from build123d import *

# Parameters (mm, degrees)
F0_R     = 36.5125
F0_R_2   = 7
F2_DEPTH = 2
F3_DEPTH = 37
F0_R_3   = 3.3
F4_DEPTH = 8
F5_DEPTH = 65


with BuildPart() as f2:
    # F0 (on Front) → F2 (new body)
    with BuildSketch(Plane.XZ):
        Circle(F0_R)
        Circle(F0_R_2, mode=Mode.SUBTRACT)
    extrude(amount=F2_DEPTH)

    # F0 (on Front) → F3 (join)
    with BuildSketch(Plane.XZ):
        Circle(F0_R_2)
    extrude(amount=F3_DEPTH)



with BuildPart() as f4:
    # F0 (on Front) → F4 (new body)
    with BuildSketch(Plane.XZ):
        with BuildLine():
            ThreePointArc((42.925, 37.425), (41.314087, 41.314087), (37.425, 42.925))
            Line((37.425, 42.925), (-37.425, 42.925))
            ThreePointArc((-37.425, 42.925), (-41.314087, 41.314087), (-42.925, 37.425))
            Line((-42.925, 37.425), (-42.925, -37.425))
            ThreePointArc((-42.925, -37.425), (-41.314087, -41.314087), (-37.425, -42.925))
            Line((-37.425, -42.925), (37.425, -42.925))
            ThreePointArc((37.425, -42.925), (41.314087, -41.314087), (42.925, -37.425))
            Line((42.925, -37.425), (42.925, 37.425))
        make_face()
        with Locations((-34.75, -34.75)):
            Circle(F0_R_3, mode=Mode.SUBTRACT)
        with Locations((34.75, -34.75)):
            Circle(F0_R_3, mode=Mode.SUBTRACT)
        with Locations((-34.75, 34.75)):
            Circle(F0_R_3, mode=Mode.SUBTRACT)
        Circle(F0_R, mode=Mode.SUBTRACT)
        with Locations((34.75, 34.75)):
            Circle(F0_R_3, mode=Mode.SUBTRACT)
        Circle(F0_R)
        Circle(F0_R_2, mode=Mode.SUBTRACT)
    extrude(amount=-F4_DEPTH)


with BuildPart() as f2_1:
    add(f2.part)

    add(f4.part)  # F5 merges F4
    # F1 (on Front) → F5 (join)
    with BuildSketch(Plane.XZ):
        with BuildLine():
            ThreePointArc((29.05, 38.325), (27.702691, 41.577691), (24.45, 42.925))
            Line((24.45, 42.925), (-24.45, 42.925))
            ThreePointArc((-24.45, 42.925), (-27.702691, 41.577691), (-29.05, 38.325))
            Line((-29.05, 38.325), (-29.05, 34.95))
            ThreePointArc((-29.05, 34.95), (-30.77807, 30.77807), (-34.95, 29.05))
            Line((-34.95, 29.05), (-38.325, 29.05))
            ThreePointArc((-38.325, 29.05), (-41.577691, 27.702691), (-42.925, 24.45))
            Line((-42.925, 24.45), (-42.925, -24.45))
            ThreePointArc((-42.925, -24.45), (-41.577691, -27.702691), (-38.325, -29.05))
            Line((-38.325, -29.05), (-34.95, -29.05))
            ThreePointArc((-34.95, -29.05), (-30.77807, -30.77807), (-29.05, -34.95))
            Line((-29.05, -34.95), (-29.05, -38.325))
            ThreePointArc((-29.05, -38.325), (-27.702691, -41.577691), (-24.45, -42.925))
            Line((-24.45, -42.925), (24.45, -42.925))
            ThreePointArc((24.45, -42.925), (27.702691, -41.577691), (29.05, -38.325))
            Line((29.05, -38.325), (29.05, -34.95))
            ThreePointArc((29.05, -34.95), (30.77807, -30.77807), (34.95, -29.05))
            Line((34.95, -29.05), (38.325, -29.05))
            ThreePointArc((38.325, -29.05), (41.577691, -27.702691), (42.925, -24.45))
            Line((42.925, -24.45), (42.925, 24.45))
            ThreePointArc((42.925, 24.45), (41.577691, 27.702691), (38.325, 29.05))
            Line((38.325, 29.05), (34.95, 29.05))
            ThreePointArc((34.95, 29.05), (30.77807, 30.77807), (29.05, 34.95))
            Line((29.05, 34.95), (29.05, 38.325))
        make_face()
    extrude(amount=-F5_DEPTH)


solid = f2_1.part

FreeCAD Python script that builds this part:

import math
import FreeCAD as App
import Part
import Sketcher
from FreeCAD import Vector

doc = App.newDocument("Part")
params = doc.addObject("Spreadsheet::Sheet", "Params")
for row, (alias, value) in enumerate([
    ("sketch1_diameter", "14 mm"),
    ("pad1_length", "2 mm"),
    ("sketch2_diameter", "14 mm"),
    ("pad2_length", "37 mm"),
    ("sketch3_diameter", "14 mm"),
    ("sketch3_diameter2", "6.6 mm"),
    ("sketch3_radius", "5.500001 mm"),
    ("sketch3_width", "74.85 mm"),
    ("pad3_length", "8 mm"),
    ("sketch4_radius", "4.600001 mm"),
    ("sketch4_radius2", "5.9 mm"),
    ("sketch4_width", "48.9 mm"),
    ("pad4_length", "65 mm"),
], start=1):
    params.set(f"A{row}", alias)
    params.set(f"B{row}", "=" + value)
    params.setAlias(f"B{row}", alias)

body = doc.addObject("PartDesign::Body", "Body")

# Sketch on XZ plane
sketch1 = doc.addObject("Sketcher::SketchObject", "Sketch")
body.addObject(sketch1)
sketch1.AttachmentSupport = (doc.XZ_Plane, [""])
sketch1.MapMode = "FlatFace"
sketch1.addGeometry(Part.Circle(Vector(0, 0, 0), Vector(0, 0, 1), 37), False)
sketch1.addGeometry(Part.Circle(Vector(0, 0, 0), Vector(0, 0, 1), 7), False)
sketch1.addConstraint(Sketcher.Constraint("Coincident", 0, 3, -1, 1))
sketch1.addConstraint(Sketcher.Constraint("Coincident", 1, 3, -1, 1))
sketch1.addConstraint(Sketcher.Constraint("Diameter", 1, 14.0))
sketch1.addConstraint(Sketcher.Constraint("Diameter", 0, 73.025))
sketch1.setExpression("Constraints[2]", "Params.sketch1_diameter")
pad1 = doc.addObject("PartDesign::Pad", "Pad")
body.addObject(pad1)
pad1.Profile = sketch1
pad1.setExpression("Length", "Params.pad1_length")

# Sketch on XZ plane
sketch2 = doc.addObject("Sketcher::SketchObject", "Sketch001")
body.addObject(sketch2)
sketch2.AttachmentSupport = (doc.XZ_Plane, [""])
sketch2.MapMode = "FlatFace"
sketch2.addGeometry(Part.Circle(Vector(0, 0, 0), Vector(0, 0, 1), 7), False)
sketch2.addConstraint(Sketcher.Constraint("Coincident", 0, 3, -1, 1))
sketch2.addConstraint(Sketcher.Constraint("Diameter", 0, 14.0))
sketch2.setExpression("Constraints[1]", "Params.sketch2_diameter")
pad2 = doc.addObject("PartDesign::Pad", "Pad001")
body.addObject(pad2)
pad2.Profile = sketch2
pad2.setExpression("Length", "Params.pad2_length")
body2 = doc.addObject("PartDesign::Body", "Body001")

# Sketch on XZ plane
sketch3 = doc.addObject("Sketcher::SketchObject", "Sketch002")
body2.addObject(sketch3)
sketch3.AttachmentSupport = (doc.getObject("XZ_Plane001"), [""])
sketch3.MapMode = "FlatFace"
sketch3.addGeometry(Part.ArcOfCircle(Part.Circle(Vector(37.4, 37.4, 0), Vector(0, 0, 1), 5.5), math.radians(0), math.radians(90)), False)
sketch3.addGeometry(Part.LineSegment(Vector(37.4, 42.9, 0), Vector(-37.4, 42.9, 0)), False)
sketch3.addGeometry(Part.ArcOfCircle(Part.Circle(Vector(-37.4, 37.4, 0), Vector(0, 0, 1), 5.5), math.radians(90), math.radians(180)), False)
sketch3.addGeometry(Part.LineSegment(Vector(-42.9, 37.4, 0), Vector(-42.9, -37.4, 0)), False)
sketch3.addGeometry(Part.ArcOfCircle(Part.Circle(Vector(-37.4, -37.4, 0), Vector(0, 0, 1), 5.5), math.radians(-180), math.radians(-90)), False)
sketch3.addGeometry(Part.LineSegment(Vector(-37.4, -42.9, 0), Vector(37.4, -42.9, 0)), False)
sketch3.addGeometry(Part.ArcOfCircle(Part.Circle(Vector(37.4, -37.4, 0), Vector(0, 0, 1), 5.5), math.radians(-90), math.radians(0)), False)
sketch3.addGeometry(Part.LineSegment(Vector(42.9, -37.4, 0), Vector(42.9, 37.4, 0)), False)
sketch3.addGeometry(Part.Circle(Vector(-34.8, -34.8, 0), Vector(0, 0, 1), 3.3), False)
sketch3.addGeometry(Part.Circle(Vector(34.8, -34.8, 0), Vector(0, 0, 1), 3.3), False)
sketch3.addGeometry(Part.Circle(Vector(-34.8, 34.8, 0), Vector(0, 0, 1), 3.3), False)
sketch3.addGeometry(Part.Circle(Vector(0, 0, 0), Vector(0, 0, 1), 7), False)
sketch3.addGeometry(Part.Circle(Vector(34.8, 34.8, 0), Vector(0, 0, 1), 3.3), False)
sketch3.addConstraint(Sketcher.Constraint("Tangent", 0, 2, 1, 1))
sketch3.addConstraint(Sketcher.Constraint("Tangent", 1, 2, 2, 1))
sketch3.addConstraint(Sketcher.Constraint("Tangent", 2, 2, 3, 1))
sketch3.addConstraint(Sketcher.Constraint("Tangent", 3, 2, 4, 1))
sketch3.addConstraint(Sketcher.Constraint("Tangent", 4, 2, 5, 1))
sketch3.addConstraint(Sketcher.Constraint("Tangent", 5, 2, 6, 1))
sketch3.addConstraint(Sketcher.Constraint("Tangent", 6, 2, 7, 1))
sketch3.addConstraint(Sketcher.Constraint("Tangent", 7, 2, 0, 1))
sketch3.addConstraint(Sketcher.Constraint("Horizontal", 1))
sketch3.addConstraint(Sketcher.Constraint("Vertical", 3))
sketch3.addConstraint(Sketcher.Constraint("Horizontal", 5))
sketch3.addConstraint(Sketcher.Constraint("Vertical", 7))
sketch3.addConstraint(Sketcher.Constraint("Coincident", 11, 3, -1, 1))
sketch3.addConstraint(Sketcher.Constraint("Equal", 0, 2))
sketch3.addConstraint(Sketcher.Constraint("Equal", 2, 4))
sketch3.addConstraint(Sketcher.Constraint("Equal", 4, 6))
sketch3.addConstraint(Sketcher.Constraint("Equal", 8, 9))
sketch3.addConstraint(Sketcher.Constraint("Equal", 9, 10))
sketch3.addConstraint(Sketcher.Constraint("Equal", 10, 12))
sketch3.addConstraint(Sketcher.Constraint("Symmetric", 0, 3, 4, 3, -1, 1))
sketch3.addConstraint(Sketcher.Constraint("Symmetric", 9, 3, 10, 3, -1, 1))
sketch3.addConstraint(Sketcher.Constraint("Symmetric", 8, 3, 12, 3, -1, 1))
sketch3.addConstraint(Sketcher.Constraint("Symmetric", 8, 3, 9, 3, -2))
sketch3.addConstraint(Sketcher.Constraint("Equal", 5, 3))
sketch3.addConstraint(Sketcher.Constraint("Diameter", 11, 14.0))
sketch3.addConstraint(Sketcher.Constraint("Diameter", 8, 6.6))
sketch3.addConstraint(Sketcher.Constraint("Radius", 0, 5.500001))
sketch3.addConstraint(Sketcher.Constraint("DistanceX", 1, 2, 1, 1, 74.85))
sketch3.addConstraint(Sketcher.Constraint("DistanceX", 8, 3, 9, 3, 69.5))
sketch3.addConstraint(Sketcher.Constraint("DistanceY", 8, 3, 10, 3, 69.5))
sketch3.setExpression("Constraints[24]", "Params.sketch3_diameter")
sketch3.setExpression("Constraints[25]", "Params.sketch3_diameter2")
sketch3.setExpression("Constraints[26]", "Params.sketch3_radius")
sketch3.setExpression("Constraints[27]", "Params.sketch3_width")
pad3 = doc.addObject("PartDesign::Pad", "Pad002")
body2.addObject(pad3)
pad3.Profile = sketch3
pad3.setExpression("Length", "Params.pad3_length")
pad3.Reversed = True
doc.recompute()

boolean = doc.addObject("PartDesign::Boolean", "Boolean")
body.addObject(boolean)
boolean.Type = "Fuse"
boolean.addObjects([body2])

# Sketch on XZ plane
sketch4 = doc.addObject("Sketcher::SketchObject", "Sketch003")
body.addObject(sketch4)
sketch4.AttachmentSupport = (doc.XZ_Plane, [""])
sketch4.MapMode = "FlatFace"
sketch4.addGeometry(Part.ArcOfCircle(Part.Circle(Vector(24.4, 38.3, 0), Vector(0, 0, 1), 4.6), math.radians(0), math.radians(90)), False)
sketch4.addGeometry(Part.LineSegment(Vector(24.4, 42.9, 0), Vector(-24.4, 42.9, 0)), False)
sketch4.addGeometry(Part.ArcOfCircle(Part.Circle(Vector(-24.4, 38.3, 0), Vector(0, 0, 1), 4.6), math.radians(90), math.radians(180)), False)
sketch4.addGeometry(Part.LineSegment(Vector(-29.1, 38.3, 0), Vector(-29.1, 35, 0)), False)
sketch4.addGeometry(Part.ArcOfCircle(Part.Circle(Vector(-35, 35, 0), Vector(0, 0, 1), 5.9), math.radians(-90), math.radians(0)), False)
sketch4.addGeometry(Part.LineSegment(Vector(-35, 29.1, 0), Vector(-38.3, 29.1, 0)), False)
sketch4.addGeometry(Part.ArcOfCircle(Part.Circle(Vector(-38.3, 24.4, 0), Vector(0, 0, 1), 4.6), math.radians(90), math.radians(180)), False)
sketch4.addGeometry(Part.LineSegment(Vector(-42.9, 24.4, 0), Vector(-42.9, -24.4, 0)), False)
sketch4.addGeometry(Part.ArcOfCircle(Part.Circle(Vector(-38.3, -24.4, 0), Vector(0, 0, 1), 4.6), math.radians(-180), math.radians(-90)), False)
sketch4.addGeometry(Part.LineSegment(Vector(-38.3, -29.1, 0), Vector(-35, -29.1, 0)), False)
sketch4.addGeometry(Part.ArcOfCircle(Part.Circle(Vector(-35, -35, 0), Vector(0, 0, 1), 5.9), math.radians(0), math.radians(90)), False)
sketch4.addGeometry(Part.LineSegment(Vector(-29.1, -35, 0), Vector(-29.1, -38.3, 0)), False)
sketch4.addGeometry(Part.ArcOfCircle(Part.Circle(Vector(-24.4, -38.3, 0), Vector(0, 0, 1), 4.6), math.radians(-180), math.radians(-90)), False)
sketch4.addGeometry(Part.LineSegment(Vector(-24.4, -42.9, 0), Vector(24.4, -42.9, 0)), False)
sketch4.addGeometry(Part.ArcOfCircle(Part.Circle(Vector(24.4, -38.3, 0), Vector(0, 0, 1), 4.6), math.radians(-90), math.radians(0)), False)
sketch4.addGeometry(Part.LineSegment(Vector(29.1, -38.3, 0), Vector(29.1, -35, 0)), False)
sketch4.addGeometry(Part.ArcOfCircle(Part.Circle(Vector(35, -35, 0), Vector(0, 0, 1), 5.9), math.radians(90), math.radians(180)), False)
sketch4.addGeometry(Part.LineSegment(Vector(35, -29.1, 0), Vector(38.3, -29.1, 0)), False)
sketch4.addGeometry(Part.ArcOfCircle(Part.Circle(Vector(38.3, -24.4, 0), Vector(0, 0, 1), 4.6), math.radians(-90), math.radians(0)), False)
sketch4.addGeometry(Part.LineSegment(Vector(42.9, -24.4, 0), Vector(42.9, 24.4, 0)), False)
sketch4.addGeometry(Part.ArcOfCircle(Part.Circle(Vector(38.3, 24.4, 0), Vector(0, 0, 1), 4.6), math.radians(0), math.radians(90)), False)
sketch4.addGeometry(Part.LineSegment(Vector(38.3, 29.1, 0), Vector(35, 29.1, 0)), False)
sketch4.addGeometry(Part.ArcOfCircle(Part.Circle(Vector(35, 35, 0), Vector(0, 0, 1), 5.9), math.radians(-180), math.radians(-90)), False)
sketch4.addGeometry(Part.LineSegment(Vector(29.1, 35, 0), Vector(29.1, 38.3, 0)), False)
sketch4.addConstraint(Sketcher.Constraint("Tangent", 0, 2, 1, 1))
sketch4.addConstraint(Sketcher.Constraint("Tangent", 1, 2, 2, 1))
sketch4.addConstraint(Sketcher.Constraint("Tangent", 2, 2, 3, 1))
sketch4.addConstraint(Sketcher.Constraint("Tangent", 3, 2, 4, 2))
sketch4.addConstraint(Sketcher.Constraint("Tangent", 4, 1, 5, 1))
sketch4.addConstraint(Sketcher.Constraint("Tangent", 5, 2, 6, 1))
sketch4.addConstraint(Sketcher.Constraint("Tangent", 6, 2, 7, 1))
sketch4.addConstraint(Sketcher.Constraint("Tangent", 7, 2, 8, 1))
sketch4.addConstraint(Sketcher.Constraint("Tangent", 8, 2, 9, 1))
sketch4.addConstraint(Sketcher.Constraint("Tangent", 9, 2, 10, 2))
sketch4.addConstraint(Sketcher.Constraint("Tangent", 10, 1, 11, 1))
sketch4.addConstraint(Sketcher.Constraint("Tangent", 11, 2, 12, 1))
sketch4.addConstraint(Sketcher.Constraint("Tangent", 12, 2, 13, 1))
sketch4.addConstraint(Sketcher.Constraint("Tangent", 13, 2, 14, 1))
sketch4.addConstraint(Sketcher.Constraint("Tangent", 14, 2, 15, 1))
sketch4.addConstraint(Sketcher.Constraint("Tangent", 15, 2, 16, 2))
sketch4.addConstraint(Sketcher.Constraint("Tangent", 16, 1, 17, 1))
sketch4.addConstraint(Sketcher.Constraint("Tangent", 17, 2, 18, 1))
sketch4.addConstraint(Sketcher.Constraint("Tangent", 18, 2, 19, 1))
sketch4.addConstraint(Sketcher.Constraint("Tangent", 19, 2, 20, 1))
sketch4.addConstraint(Sketcher.Constraint("Tangent", 20, 2, 21, 1))
sketch4.addConstraint(Sketcher.Constraint("Tangent", 21, 2, 22, 2))
sketch4.addConstraint(Sketcher.Constraint("Tangent", 22, 1, 23, 1))
sketch4.addConstraint(Sketcher.Constraint("Tangent", 23, 2, 0, 1))
sketch4.addConstraint(Sketcher.Constraint("Horizontal", 1))
sketch4.addConstraint(Sketcher.Constraint("Vertical", 3))
sketch4.addConstraint(Sketcher.Constraint("Horizontal", 5))
sketch4.addConstraint(Sketcher.Constraint("Vertical", 7))
sketch4.addConstraint(Sketcher.Constraint("Horizontal", 9))
sketch4.addConstraint(Sketcher.Constraint("Vertical", 11))
sketch4.addConstraint(Sketcher.Constraint("Horizontal", 13))
sketch4.addConstraint(Sketcher.Constraint("Vertical", 15))
sketch4.addConstraint(Sketcher.Constraint("Horizontal", 17))
sketch4.addConstraint(Sketcher.Constraint("Vertical", 19))
sketch4.addConstraint(Sketcher.Constraint("Horizontal", 21))
sketch4.addConstraint(Sketcher.Constraint("Vertical", 23))
sketch4.addConstraint(Sketcher.Constraint("Equal", 0, 2))
sketch4.addConstraint(Sketcher.Constraint("Equal", 2, 6))
sketch4.addConstraint(Sketcher.Constraint("Equal", 6, 8))
sketch4.addConstraint(Sketcher.Constraint("Equal", 4, 10))
sketch4.addConstraint(Sketcher.Constraint("Equal", 8, 12))
sketch4.addConstraint(Sketcher.Constraint("Equal", 12, 14))
sketch4.addConstraint(Sketcher.Constraint("Equal", 10, 16))
sketch4.addConstraint(Sketcher.Constraint("Equal", 14, 18))
sketch4.addConstraint(Sketcher.Constraint("Equal", 18, 20))
sketch4.addConstraint(Sketcher.Constraint("Equal", 16, 22))
sketch4.addConstraint(Sketcher.Constraint("Symmetric", 0, 3, 12, 3, -1, 1))
sketch4.addConstraint(Sketcher.Constraint("Symmetric", 4, 3, 16, 3, -1, 1))
sketch4.addConstraint(Sketcher.Constraint("Symmetric", 8, 3, 20, 3, -1, 1))
sketch4.addConstraint(Sketcher.Constraint("Symmetric", 10, 3, 16, 3, -2))
sketch4.addConstraint(Sketcher.Constraint("Equal", 21, 3))
sketch4.addConstraint(Sketcher.Constraint("Equal", 13, 7))
sketch4.addConstraint(Sketcher.Constraint("Radius", 0, 4.600001))
sketch4.addConstraint(Sketcher.Constraint("Radius", 4, 5.9))
sketch4.addConstraint(Sketcher.Constraint("DistanceX", 1, 2, 1, 1, 48.9))
sketch4.addConstraint(Sketcher.Constraint("DistanceX", 5, 2, 5, 1, 3.375))
sketch4.setExpression("Constraints[52]", "Params.sketch4_radius")
sketch4.setExpression("Constraints[53]", "Params.sketch4_radius2")
sketch4.setExpression("Constraints[54]", "Params.sketch4_width")
pad4 = doc.addObject("PartDesign::Pad", "Pad003")
body.addObject(pad4)
pad4.Profile = sketch4
pad4.setExpression("Length", "Params.pad4_length")
pad4.Reversed = True

doc.recompute()
